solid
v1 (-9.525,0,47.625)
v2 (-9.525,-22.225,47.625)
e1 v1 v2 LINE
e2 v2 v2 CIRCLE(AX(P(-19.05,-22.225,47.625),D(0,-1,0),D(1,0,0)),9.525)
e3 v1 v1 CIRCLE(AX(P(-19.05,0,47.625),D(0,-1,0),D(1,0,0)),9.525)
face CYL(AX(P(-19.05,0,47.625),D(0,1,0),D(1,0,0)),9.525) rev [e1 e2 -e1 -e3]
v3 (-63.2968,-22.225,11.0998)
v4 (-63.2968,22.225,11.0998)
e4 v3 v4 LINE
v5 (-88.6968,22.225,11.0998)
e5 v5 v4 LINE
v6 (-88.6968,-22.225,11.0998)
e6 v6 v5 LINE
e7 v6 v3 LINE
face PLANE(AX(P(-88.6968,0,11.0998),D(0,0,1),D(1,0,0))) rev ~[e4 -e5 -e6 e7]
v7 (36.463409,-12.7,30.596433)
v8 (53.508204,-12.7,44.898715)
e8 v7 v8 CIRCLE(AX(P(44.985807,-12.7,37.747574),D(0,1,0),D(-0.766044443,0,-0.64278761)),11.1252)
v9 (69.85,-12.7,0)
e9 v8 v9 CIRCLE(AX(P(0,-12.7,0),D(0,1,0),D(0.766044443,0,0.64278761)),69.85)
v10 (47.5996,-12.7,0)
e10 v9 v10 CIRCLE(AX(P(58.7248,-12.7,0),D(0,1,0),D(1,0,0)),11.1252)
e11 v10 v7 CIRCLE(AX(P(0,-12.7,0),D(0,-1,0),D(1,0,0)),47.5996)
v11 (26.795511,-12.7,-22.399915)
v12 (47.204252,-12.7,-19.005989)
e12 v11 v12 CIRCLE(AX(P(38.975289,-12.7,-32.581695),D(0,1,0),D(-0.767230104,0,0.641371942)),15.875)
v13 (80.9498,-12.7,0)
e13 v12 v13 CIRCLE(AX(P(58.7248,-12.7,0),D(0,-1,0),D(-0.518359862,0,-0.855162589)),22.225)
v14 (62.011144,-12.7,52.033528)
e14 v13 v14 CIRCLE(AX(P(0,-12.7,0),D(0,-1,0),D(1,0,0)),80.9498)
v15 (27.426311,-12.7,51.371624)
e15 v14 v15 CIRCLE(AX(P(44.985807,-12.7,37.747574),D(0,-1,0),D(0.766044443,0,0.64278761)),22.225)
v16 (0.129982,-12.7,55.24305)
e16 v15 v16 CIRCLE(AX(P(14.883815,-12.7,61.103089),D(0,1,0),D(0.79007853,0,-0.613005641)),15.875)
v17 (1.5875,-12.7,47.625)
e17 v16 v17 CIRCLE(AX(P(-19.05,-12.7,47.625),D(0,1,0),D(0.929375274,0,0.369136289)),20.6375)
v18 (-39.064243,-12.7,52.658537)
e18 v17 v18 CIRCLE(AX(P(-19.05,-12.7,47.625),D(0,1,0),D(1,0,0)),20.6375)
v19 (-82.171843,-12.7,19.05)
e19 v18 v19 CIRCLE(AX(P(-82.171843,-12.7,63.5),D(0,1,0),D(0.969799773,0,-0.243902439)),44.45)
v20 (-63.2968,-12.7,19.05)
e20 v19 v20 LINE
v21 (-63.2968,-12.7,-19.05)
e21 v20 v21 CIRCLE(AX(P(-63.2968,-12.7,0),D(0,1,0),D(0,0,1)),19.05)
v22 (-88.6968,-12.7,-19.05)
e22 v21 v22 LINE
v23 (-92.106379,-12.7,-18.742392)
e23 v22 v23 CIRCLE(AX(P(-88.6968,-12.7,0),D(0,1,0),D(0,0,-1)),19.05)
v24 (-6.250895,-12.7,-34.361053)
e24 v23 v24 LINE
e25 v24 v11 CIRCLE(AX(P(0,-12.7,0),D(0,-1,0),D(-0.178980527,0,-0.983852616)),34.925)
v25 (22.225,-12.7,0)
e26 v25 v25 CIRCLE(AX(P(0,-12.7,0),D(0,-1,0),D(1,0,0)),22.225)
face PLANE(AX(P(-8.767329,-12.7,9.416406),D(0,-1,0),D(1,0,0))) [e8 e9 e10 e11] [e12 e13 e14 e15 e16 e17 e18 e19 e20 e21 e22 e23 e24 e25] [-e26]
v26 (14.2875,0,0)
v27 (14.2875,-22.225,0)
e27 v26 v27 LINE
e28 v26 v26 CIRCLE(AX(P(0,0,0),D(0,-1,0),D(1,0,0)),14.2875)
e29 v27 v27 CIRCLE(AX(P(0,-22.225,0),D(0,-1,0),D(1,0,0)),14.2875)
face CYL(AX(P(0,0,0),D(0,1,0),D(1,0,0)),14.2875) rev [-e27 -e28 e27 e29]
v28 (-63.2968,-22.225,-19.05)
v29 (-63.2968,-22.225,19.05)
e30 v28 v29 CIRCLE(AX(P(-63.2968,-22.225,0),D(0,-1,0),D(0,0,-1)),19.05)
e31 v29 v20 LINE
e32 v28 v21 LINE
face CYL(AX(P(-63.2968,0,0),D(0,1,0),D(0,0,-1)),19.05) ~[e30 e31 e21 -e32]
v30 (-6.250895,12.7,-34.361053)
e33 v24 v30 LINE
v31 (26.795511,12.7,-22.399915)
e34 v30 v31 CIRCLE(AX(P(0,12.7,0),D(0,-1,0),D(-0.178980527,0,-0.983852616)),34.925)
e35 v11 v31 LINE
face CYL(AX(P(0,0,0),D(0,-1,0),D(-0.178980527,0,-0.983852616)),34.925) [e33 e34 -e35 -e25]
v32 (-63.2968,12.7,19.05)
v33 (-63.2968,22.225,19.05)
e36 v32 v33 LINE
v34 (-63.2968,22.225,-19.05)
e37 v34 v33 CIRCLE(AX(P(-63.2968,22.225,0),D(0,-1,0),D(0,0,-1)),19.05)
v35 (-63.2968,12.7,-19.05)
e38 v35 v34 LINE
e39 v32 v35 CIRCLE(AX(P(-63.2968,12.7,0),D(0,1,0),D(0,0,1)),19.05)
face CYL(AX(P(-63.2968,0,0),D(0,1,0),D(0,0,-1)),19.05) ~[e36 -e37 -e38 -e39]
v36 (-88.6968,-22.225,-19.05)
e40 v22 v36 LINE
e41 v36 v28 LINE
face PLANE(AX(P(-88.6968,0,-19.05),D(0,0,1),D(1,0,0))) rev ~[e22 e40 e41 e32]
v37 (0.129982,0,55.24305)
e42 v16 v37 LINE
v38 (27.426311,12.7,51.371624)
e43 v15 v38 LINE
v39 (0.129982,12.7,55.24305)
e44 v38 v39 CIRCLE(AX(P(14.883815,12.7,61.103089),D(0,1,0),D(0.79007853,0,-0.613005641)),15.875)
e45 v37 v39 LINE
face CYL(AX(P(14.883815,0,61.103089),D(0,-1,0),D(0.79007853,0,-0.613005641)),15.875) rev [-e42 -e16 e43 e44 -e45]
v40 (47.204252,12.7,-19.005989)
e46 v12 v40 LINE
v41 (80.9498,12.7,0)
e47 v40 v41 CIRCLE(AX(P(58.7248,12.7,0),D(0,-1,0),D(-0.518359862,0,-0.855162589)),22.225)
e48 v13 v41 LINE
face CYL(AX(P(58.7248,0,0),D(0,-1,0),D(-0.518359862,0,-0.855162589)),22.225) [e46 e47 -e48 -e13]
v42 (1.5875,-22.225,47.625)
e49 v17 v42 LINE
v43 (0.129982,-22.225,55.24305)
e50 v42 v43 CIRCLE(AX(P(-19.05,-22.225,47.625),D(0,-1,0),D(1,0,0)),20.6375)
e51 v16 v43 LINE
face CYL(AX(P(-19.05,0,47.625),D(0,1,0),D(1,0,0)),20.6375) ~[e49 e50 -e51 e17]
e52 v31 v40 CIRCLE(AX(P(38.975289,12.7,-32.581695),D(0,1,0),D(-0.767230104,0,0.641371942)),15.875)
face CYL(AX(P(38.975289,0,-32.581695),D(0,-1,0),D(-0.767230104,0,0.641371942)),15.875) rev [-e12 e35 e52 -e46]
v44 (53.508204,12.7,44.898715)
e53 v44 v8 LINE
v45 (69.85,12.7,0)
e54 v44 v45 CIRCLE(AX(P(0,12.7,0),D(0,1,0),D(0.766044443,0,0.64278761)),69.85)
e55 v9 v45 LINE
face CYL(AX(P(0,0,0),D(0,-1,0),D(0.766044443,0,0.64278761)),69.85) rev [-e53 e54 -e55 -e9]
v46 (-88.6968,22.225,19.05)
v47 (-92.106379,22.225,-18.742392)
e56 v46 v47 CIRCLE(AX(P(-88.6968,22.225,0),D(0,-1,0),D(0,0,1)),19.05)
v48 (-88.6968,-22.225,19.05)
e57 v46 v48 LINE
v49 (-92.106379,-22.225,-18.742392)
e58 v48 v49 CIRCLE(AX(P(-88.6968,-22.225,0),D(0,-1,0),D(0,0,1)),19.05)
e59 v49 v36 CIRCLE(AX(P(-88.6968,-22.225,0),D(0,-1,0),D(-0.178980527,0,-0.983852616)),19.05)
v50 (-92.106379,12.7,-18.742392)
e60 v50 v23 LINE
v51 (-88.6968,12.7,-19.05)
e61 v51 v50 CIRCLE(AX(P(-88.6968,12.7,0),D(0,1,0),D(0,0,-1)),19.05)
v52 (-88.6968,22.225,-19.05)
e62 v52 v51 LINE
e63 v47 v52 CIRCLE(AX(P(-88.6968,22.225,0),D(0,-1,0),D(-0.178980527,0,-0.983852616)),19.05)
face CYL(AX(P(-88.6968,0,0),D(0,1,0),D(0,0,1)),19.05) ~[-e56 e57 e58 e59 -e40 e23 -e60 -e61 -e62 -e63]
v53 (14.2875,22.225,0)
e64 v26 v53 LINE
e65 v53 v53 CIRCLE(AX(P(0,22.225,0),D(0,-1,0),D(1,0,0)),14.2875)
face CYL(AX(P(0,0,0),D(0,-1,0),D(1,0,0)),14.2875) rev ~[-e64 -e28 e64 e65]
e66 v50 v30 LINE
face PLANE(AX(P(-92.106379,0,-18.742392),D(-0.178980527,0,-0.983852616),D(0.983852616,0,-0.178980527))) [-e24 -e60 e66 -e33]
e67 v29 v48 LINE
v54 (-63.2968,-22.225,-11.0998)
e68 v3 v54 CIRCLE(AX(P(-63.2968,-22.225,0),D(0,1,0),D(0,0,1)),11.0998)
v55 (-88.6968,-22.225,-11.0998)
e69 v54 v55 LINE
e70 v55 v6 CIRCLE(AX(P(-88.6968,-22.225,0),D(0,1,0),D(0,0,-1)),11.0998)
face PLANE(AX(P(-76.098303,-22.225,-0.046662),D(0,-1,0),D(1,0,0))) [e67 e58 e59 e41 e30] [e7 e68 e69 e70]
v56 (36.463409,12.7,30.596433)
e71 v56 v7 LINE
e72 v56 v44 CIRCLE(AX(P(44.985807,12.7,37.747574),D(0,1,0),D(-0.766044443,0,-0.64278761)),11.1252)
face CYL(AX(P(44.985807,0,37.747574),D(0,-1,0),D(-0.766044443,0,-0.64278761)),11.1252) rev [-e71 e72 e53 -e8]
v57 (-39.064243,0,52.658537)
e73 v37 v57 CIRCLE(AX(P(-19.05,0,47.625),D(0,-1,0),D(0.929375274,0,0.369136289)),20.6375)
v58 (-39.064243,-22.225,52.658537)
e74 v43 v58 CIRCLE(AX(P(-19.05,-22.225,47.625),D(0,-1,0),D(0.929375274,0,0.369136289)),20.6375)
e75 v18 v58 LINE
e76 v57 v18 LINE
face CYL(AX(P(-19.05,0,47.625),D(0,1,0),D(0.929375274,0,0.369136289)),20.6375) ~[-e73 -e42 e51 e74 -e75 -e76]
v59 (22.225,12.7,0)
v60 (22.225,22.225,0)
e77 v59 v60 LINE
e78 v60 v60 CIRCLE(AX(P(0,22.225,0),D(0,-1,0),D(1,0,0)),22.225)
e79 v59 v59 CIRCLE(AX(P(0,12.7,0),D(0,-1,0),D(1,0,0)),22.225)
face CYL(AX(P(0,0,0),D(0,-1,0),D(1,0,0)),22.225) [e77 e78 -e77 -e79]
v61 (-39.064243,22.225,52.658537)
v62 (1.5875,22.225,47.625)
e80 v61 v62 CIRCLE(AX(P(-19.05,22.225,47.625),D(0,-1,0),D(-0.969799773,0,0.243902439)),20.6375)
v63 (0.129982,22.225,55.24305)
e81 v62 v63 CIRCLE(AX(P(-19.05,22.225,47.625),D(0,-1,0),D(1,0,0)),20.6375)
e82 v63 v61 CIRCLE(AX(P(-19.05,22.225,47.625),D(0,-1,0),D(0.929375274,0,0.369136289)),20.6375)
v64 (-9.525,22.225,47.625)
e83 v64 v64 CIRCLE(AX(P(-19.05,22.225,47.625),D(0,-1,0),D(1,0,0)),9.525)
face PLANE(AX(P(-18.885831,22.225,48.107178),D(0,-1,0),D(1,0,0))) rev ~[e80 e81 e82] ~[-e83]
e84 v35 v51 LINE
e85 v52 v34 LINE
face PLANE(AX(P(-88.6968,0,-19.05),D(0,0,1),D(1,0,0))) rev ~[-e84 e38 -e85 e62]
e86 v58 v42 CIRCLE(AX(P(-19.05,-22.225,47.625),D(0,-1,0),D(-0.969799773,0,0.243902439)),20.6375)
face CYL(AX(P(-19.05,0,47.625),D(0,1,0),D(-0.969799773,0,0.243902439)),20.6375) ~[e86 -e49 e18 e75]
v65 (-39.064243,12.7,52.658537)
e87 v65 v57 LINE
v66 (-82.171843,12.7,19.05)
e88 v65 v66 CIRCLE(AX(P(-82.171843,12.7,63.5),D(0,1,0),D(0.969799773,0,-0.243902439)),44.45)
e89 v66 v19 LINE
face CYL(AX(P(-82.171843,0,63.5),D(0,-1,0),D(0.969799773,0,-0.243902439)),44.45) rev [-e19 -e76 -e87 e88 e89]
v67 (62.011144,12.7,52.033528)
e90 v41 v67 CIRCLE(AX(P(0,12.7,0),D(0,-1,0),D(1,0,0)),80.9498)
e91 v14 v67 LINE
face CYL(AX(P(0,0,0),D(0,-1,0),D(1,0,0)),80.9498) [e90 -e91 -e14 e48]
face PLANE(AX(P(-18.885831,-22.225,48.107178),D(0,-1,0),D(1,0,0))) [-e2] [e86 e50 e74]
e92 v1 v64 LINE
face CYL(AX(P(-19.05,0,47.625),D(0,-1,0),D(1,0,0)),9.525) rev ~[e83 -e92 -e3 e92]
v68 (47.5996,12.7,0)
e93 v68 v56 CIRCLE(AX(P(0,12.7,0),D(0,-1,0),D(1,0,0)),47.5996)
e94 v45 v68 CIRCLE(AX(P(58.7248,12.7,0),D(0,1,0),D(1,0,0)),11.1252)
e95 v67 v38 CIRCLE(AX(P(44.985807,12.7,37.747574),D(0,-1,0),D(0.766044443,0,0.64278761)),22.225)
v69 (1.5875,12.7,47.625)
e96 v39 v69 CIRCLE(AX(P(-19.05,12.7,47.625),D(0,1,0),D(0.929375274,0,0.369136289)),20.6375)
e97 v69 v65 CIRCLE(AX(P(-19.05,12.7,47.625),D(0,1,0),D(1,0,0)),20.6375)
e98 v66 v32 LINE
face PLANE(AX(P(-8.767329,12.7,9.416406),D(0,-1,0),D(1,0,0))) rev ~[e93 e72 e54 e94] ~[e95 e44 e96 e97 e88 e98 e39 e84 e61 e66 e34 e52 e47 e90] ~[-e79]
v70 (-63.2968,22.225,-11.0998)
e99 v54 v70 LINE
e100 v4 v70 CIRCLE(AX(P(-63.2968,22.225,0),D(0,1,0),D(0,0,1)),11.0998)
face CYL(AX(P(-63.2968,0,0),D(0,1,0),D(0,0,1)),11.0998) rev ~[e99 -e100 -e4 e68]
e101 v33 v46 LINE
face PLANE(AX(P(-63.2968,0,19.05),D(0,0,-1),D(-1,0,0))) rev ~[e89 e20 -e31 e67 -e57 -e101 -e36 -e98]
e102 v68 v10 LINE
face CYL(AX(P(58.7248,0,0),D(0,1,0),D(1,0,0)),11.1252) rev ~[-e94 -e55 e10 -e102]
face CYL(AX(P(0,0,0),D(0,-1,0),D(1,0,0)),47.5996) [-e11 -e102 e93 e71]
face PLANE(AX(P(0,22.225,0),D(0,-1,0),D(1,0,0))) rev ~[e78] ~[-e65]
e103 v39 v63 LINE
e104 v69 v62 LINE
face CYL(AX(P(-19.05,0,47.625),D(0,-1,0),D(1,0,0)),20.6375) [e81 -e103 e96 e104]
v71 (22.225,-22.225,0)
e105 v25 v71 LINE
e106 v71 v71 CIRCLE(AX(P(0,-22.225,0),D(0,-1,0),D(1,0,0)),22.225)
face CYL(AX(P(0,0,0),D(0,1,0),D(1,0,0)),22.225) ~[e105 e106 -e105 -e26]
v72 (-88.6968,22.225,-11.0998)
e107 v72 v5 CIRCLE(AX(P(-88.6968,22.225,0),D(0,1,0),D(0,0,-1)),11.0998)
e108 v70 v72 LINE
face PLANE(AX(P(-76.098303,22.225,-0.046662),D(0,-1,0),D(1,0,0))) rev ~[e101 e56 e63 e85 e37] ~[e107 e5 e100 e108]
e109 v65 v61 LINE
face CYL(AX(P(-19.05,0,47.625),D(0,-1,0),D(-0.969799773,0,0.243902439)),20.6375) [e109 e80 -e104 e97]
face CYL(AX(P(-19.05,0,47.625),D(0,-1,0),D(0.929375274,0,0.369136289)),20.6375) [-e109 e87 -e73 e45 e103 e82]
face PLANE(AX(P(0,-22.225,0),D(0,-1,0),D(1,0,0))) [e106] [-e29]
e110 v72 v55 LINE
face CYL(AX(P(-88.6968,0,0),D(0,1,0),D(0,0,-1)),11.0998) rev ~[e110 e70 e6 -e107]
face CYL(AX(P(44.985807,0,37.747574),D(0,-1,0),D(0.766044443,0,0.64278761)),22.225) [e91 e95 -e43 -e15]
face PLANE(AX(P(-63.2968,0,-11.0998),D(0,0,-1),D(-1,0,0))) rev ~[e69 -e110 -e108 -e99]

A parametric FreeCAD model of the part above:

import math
import FreeCAD as App
import Part
import Sketcher

V = App.Vector
Q = App.Units.Quantity

doc = App.newDocument("Part")
params = doc.addObject("Spreadsheet::Sheet", "Params")
for row, (alias, value) in enumerate([
    ("sketch1_diameter", "1.75 in"),
    ("sketch1_width", "1 in"),
    ("sketch1_radius", "1.75 in"),
    ("sketch1_radius2", "0.75 in"),
    ("sketch1_radius3", "2.75 in"),
    ("pad1_length", "1 in"),
    ("sketch2_diameter", "1.75 in"),
    ("sketch2_diameter2", "0.75 in"),
    ("sketch2_width", "1 in"),
    ("sketch2_radius", "0.75 in"),
    ("sketch2_diameter3", "1.125 in"),
    ("pad2_length", "1.75 in"),
], start=1):
    params.set(f"A{row}", alias)
    params.set(f"B{row}", "=" + value)
    params.setAlias(f"B{row}", alias)

body = doc.addObject("PartDesign::Body", "Body")

sketch1 = body.newObject("Sketcher::SketchObject", "Sketch")
sketch1.AttachmentSupport = (doc.getObject("XZ_Plane"), [""])
sketch1.MapMode = "FlatFace"
sketch1.addGeometry(Part.ArcOfCircle(Part.Circle(V(-19, 47.6, 0), V(0, 0, 1), 20.6), math.radians(0), math.radians(22)), False)
sketch1.addGeometry(Part.ArcOfCircle(Part.Circle(V(-19.1, 47.6, 0), V(0, 0, 1), 20.6), math.radians(166), math.radians(360)), False)
sketch1.addGeometry(Part.ArcOfCircle(Part.Circle(V(-82.2, 63.5, 0), V(0, 0, 1), 44.5), math.radians(-90), math.radians(-14)), False)
sketch1.addGeometry(Part.LineSegment(V(-82.2, 19.1, 0), V(-63.3, 19.1, 0)), False)
sketch1.addGeometry(Part.ArcOfCircle(Part.Circle(V(-63.3, 0, 0), V(0, 0, 1), 19.1), math.radians(-90), math.radians(90)), False)
sketch1.addGeometry(Part.LineSegment(V(-63.3, -19.1, 0), V(-88.7, -19.1, 0)), False)
sketch1.addGeometry(Part.ArcOfCircle(Part.Circle(V(-88.7, 0, 0), V(0, 0, 1), 19), math.radians(-100.31), math.radians(-90)), False)
sketch1.addGeometry(Part.LineSegment(V(-92.1, -18.7, 0), V(-6.3, -34.4, 0)), False)
sketch1.addGeometry(Part.ArcOfCircle(Part.Circle(V(0, 0, 0), V(0, 0, 1), 34.9), math.radians(-100), math.radians(-40)), False)
sketch1.addGeometry(Part.ArcOfCircle(Part.Circle(V(39, -32.6, 0), V(0, 0, 1), 15.9), math.radians(59), math.radians(140)), False)
sketch1.addGeometry(Part.ArcOfCircle(Part.Circle(V(58.7, 0, 0), V(0, 0, 1), 22.2), math.radians(-121), math.radians(0)), False)
sketch1.addGeometry(Part.ArcOfCircle(Part.Circle(V(0, 0, 0), V(0, 0, 1), 80.9), math.radians(0), math.radians(40)), False)
sketch1.addGeometry(Part.ArcOfCircle(Part.Circle(V(45, 37.7, 0), V(0, 0, 1), 22.2), math.radians(40), math.radians(142)), False)
sketch1.addGeometry(Part.ArcOfCircle(Part.Circle(V(14.9, 61.1, 0), V(0, 0, 1), 15.9), math.radians(-158), math.radians(-38)), False)
sketch1.addGeometry(Part.Circle(V(0, 0, 0), V(0, 0, 1), 22.2), False)
sketch1.addGeometry(Part.ArcOfCircle(Part.Circle(V(0, 0, 0), V(0, 0, 1), 69.8), math.radians(0), math.radians(40)), False)
sketch1.addGeometry(Part.ArcOfCircle(Part.Circle(V(58.7, 0, 0), V(0, 0, 1), 11.1), math.radians(180), math.radians(360)), False)
sketch1.addGeometry(Part.ArcOfCircle(Part.Circle(V(0, 0, 0), V(0, 0, 1), 47.6), math.radians(0), math.radians(40)), False)
sketch1.addGeometry(Part.ArcOfCircle(Part.Circle(V(45, 37.7, 0), V(0, 0, 1), 11.1), math.radians(40), math.radians(220)), False)
sketch1.addConstraint(Sketcher.Constraint("Tangent", 0, 1, 1, 2))
sketch1.addConstraint(Sketcher.Constraint("Tangent", 1, 1, 2, 2))
sketch1.addConstraint(Sketcher.Constraint("Tangent", 2, 1, 3, 1))
sketch1.addConstraint(Sketcher.Constraint("Tangent", 3, 2, 4, 2))
sketch1.addConstraint(Sketcher.Constraint("Tangent", 4, 1, 5, 1))
sketch1.addConstraint(Sketcher.Constraint("Tangent", 5, 2, 6, 2))
sketch1.addConstraint(Sketcher.Constraint("Tangent", 6, 1, 7, 1))
sketch1.addConstraint(Sketcher.Constraint("Tangent", 7, 2, 8, 1))
sketch1.addConstraint(Sketcher.Constraint("Tangent", 8, 2, 9, 2))
sketch1.addConstraint(Sketcher.Constraint("Tangent", 9, 1, 10, 1))
sketch1.addConstraint(Sketcher.Constraint("Tangent", 10, 2, 11, 1))
sketch1.addConstraint(Sketcher.Constraint("Tangent", 11, 2, 12, 1))
sketch1.addConstraint(Sketcher.Constraint("Tangent", 12, 2, 13, 2))
sketch1.addConstraint(Sketcher.Constraint("Tangent", 13, 1, 0, 2))
sketch1.addConstraint(Sketcher.Constraint("Tangent", 15, 1, 16, 2))
sketch1.addConstraint(Sketcher.Constraint("Tangent", 16, 1, 17, 1))
sketch1.addConstraint(Sketcher.Constraint("Tangent", 17, 2, 18, 2))
sketch1.addConstraint(Sketcher.Constraint("Tangent", 18, 1, 15, 2))
sketch1.addConstraint(Sketcher.Constraint("Horizontal", 3))
sketch1.addConstraint(Sketcher.Constraint("Horizontal", 5))
sketch1.addConstraint(Sketcher.Constraint("Coincident", 8, 3, -1, 1))
sketch1.addConstraint(Sketcher.Constraint("Coincident", 11, 3, -1, 1))
sketch1.addConstraint(Sketcher.Constraint("Coincident", 14, 3, -1, 1))
sketch1.addConstraint(Sketcher.Constraint("Coincident", 15, 3, -1, 1))
sketch1.addConstraint(Sketcher.Constraint("Coincident", 17, 3, -1, 1))
sketch1.addConstraint(Sketcher.Constraint("Coincident", 16, 3, 10, 3))
sketch1.addConstraint(Sketcher.Constraint("Coincident", 18, 3, 12, 3))
sketch1.addConstraint(Sketcher.Constraint("Equal", 0, 1))
sketch1.addConstraint(Sketcher.Constraint("Equal", 4, 6))
sketch1.addConstraint(Sketcher.Constraint("Equal", 9, 13))
sketch1.addConstraint(Sketcher.Constraint("Equal", 12, 14))
sketch1.addConstraint(Sketcher.Constraint("PointOnObject", 4, 3, -1))
sketch1.addConstraint(Sketcher.Constraint("PointOnObject", 10, 3, -1))
sketch1.addConstraint(Sketcher.Constraint("Horizontal", 1, 3, 0, 1))
sketch1.addConstraint(Sketcher.Constraint("Diameter", 14, Q("1.75 in")))
sketch1.addConstraint(Sketcher.Constraint("DistanceX", 5, 2, 5, 1, Q("1 in")))
sketch1.addConstraint(Sketcher.Constraint("Radius", 2, Q("1.75 in")))
sketch1.addConstraint(Sketcher.Constraint("Radius", 4, Q("0.75 in")))
sketch1.addConstraint(Sketcher.Constraint("Radius", 15, Q("2.75 in")))
sketch1.addConstraint(Sketcher.Constraint("Radius", 0, Q("0.8125 in")))
sketch1.addConstraint(Sketcher.Constraint("Radius", 8, Q("1.375 in")))
sketch1.addConstraint(Sketcher.Constraint("Radius", 9, Q("0.625 in")))
sketch1.addConstraint(Sketcher.Constraint("Radius", 11, Q("3.187 in")))
sketch1.addConstraint(Sketcher.Constraint("DistanceX", 0, 3, -1, 1, Q("0.75 in")))
sketch1.addConstraint(Sketcher.Constraint("DistanceY", -1, 1, 0, 3, Q("1.875 in")))
sketch1.addConstraint(Sketcher.Constraint("DistanceX", 4, 3, -1, 1, Q("2.492 in")))
sketch1.addConstraint(Sketcher.Constraint("DistanceY", -1, 1, 13, 3, 61.103089))
sketch1.setExpression("Constraints[34]", "Params.sketch1_diameter")
sketch1.setExpression("Constraints[35]", "Params.sketch1_width")
sketch1.setExpression("Constraints[36]", "Params.sketch1_radius")
sketch1.setExpression("Constraints[37]", "Params.sketch1_radius2")
sketch1.setExpression("Constraints[38]", "Params.sketch1_radius3")
pad1 = body.newObject("PartDesign::Pad", "Pad")
pad1.Profile = sketch1
pad1.setExpression("Length", "Params.pad1_length")
pad1.Midplane = True

sketch2 = body.newObject("Sketcher::SketchObject", "Sketch001")
sketch2.AttachmentSupport = (doc.getObject("XZ_Plane"), [""])
sketch2.MapMode = "FlatFace"
sketch2.addGeometry(Part.LineSegment(V(-63.3, 19.1, 0), V(-88.7, 19.1, 0)), False)
sketch2.addGeometry(Part.ArcOfCircle(Part.Circle(V(-88.7, 0, 0), V(0, 0, 1), 19.1), math.radians(90), math.radians(260)), False)
sketch2.addGeometry(Part.ArcOfCircle(Part.Circle(V(-88.7, 0, 0), V(0, 0, 1), 19), math.radians(-100.31), math.radians(-90)), False)
sketch2.addGeometry(Part.LineSegment(V(-88.7, -19.1, 0), V(-63.3, -19.1, 0)), False)
sketch2.addGeometry(Part.ArcOfCircle(Part.Circle(V(-63.3, 0, 0), V(0, 0, 1), 19.1), math.radians(-90), math.radians(90)), False)
sketch2.addGeometry(Part.LineSegment(V(-63.3, -11.1, 0), V(-88.7, -11.1, 0)), False)
sketch2.addGeometry(Part.ArcOfCircle(Part.Circle(V(-88.7, 0, 0), V(0, 0, 1), 11.1), math.radians(90), math.radians(270)), False)
sketch2.addGeometry(Part.LineSegment(V(-88.7, 11.1, 0), V(-63.3, 11.1, 0)), False)
sketch2.addGeometry(Part.ArcOfCircle(Part.Circle(V(-63.3, 0, 0), V(0, 0, 1), 11.1), math.radians(-90), math.radians(90)), False)
sketch2.addGeometry(Part.Circle(V(0, 0, 0), V(0, 0, 1), 22.2), False)
sketch2.addGeometry(Part.Circle(V(0, 0, 0), V(0, 0, 1), 14.3), False)
sketch2.addGeometry(Part.ArcOfCircle(Part.Circle(V(-19.1, 47.6, 0), V(0, 0, 1), 20.6), math.radians(166), math.radians(360)), False)
sketch2.addGeometry(Part.ArcOfCircle(Part.Circle(V(-19, 47.6, 0), V(0, 0, 1), 20.6), math.radians(0), math.radians(22)), False)
sketch2.addGeometry(Part.ArcOfCircle(Part.Circle(V(-19.1, 47.6, 0), V(0, 0, 1), 20.6), math.radians(22), math.radians(166)), False)
sketch2.addGeometry(Part.Circle(V(-19.1, 47.6, 0), V(0, 0, 1), 9.5), False)
sketch2.addConstraint(Sketcher.Constraint("Tangent", 0, 2, 1, 1))
sketch2.addConstraint(Sketcher.Constraint("Tangent", 1, 2, 2, 1))
sketch2.addConstraint(Sketcher.Constraint("Tangent", 2, 2, 3, 1))
sketch2.addConstraint(Sketcher.Constraint("Tangent", 3, 2, 4, 1))
sketch2.addConstraint(Sketcher.Constraint("Tangent", 4, 2, 0, 1))
sketch2.addConstraint(Sketcher.Constraint("Tangent", 5, 2, 6, 2))
sketch2.addConstraint(Sketcher.Constraint("Tangent", 6, 1, 7, 1))
sketch2.addConstraint(Sketcher.Constraint("Tangent", 7, 2, 8, 2))
sketch2.addConstraint(Sketcher.Constraint("Tangent", 8, 1, 5, 1))
sketch2.addConstraint(Sketcher.Constraint("Tangent", 11, 2, 12, 1))
sketch2.addConstraint(Sketcher.Constraint("Tangent", 12, 2, 13, 1))
sketch2.addConstraint(Sketcher.Constraint("Tangent", 13, 2, 11, 1))
sketch2.addConstraint(Sketcher.Constraint("Horizontal", 0))
sketch2.addConstraint(Sketcher.Constraint("Horizontal", 3))
sketch2.addConstraint(Sketcher.Constraint("Horizontal", 5))
sketch2.addConstraint(Sketcher.Constraint("Horizontal", 7))
sketch2.addConstraint(Sketcher.Constraint("Coincident", 9, 3, -1, 1))
sketch2.addConstraint(Sketcher.Constraint("Coincident", 10, 3, -1, 1))
sketch2.addConstraint(Sketcher.Constraint("Coincident", 6, 3, 1, 3))
sketch2.addConstraint(Sketcher.Constraint("Coincident", 8, 3, 4, 3))
sketch2.addConstraint(Sketcher.Constraint("Coincident", 14, 3, 11, 3))
sketch2.addConstraint(Sketcher.Constraint("PointOnObject", 1, 3, -1))
sketch2.addConstraint(Sketcher.Constraint("Horizontal", 14, 3, 11, 2))
sketch2.addConstraint(Sketcher.Constraint("Diameter", 9, Q("1.75 in")))
sketch2.addConstraint(Sketcher.Constraint("Diameter", 14, Q("0.75 in")))
sketch2.addConstraint(Sketcher.Constraint("DistanceX", 0, 2, 0, 1, Q("1 in")))
sketch2.addConstraint(Sketcher.Constraint("Radius", 1, Q("0.75 in")))
sketch2.addConstraint(Sketcher.Constraint("Diameter", 10, Q("1.125 in")))
sketch2.addConstraint(Sketcher.Constraint("Radius", 6, Q("0.437 in")))
sketch2.addConstraint(Sketcher.Constraint("Radius", 11, Q("0.8125 in")))
sketch2.addConstraint(Sketcher.Constraint("DistanceX", 11, 3, -1, 1, Q("0.75 in")))
sketch2.addConstraint(Sketcher.Constraint("DistanceX", 1, 3, -1, 1, Q("3.492 in")))
sketch2.addConstraint(Sketcher.Constraint("DistanceY", -1, 1, 11, 3, Q("1.875 in")))
sketch2.addConstraint(Sketcher.Constraint("DistanceX", 1, 2, -1, 1, 92.106379))
sketch2.addConstraint(Sketcher.Constraint("DistanceY", -1, 1, 12, 2, 55.24305))
sketch2.addConstraint(Sketcher.Constraint("DistanceX", 13, 2, -1, 1, 39.064243))
sketch2.setExpression("Constraints[23]", "Params.sketch2_diameter")
sketch2.setExpression("Constraints[24]", "Params.sketch2_diameter2")
sketch2.setExpression("Constraints[25]", "Params.sketch2_width")
sketch2.setExpression("Constraints[26]", "Params.sketch2_radius")
sketch2.setExpression("Constraints[27]", "Params.sketch2_diameter3")
pad2 = body.newObject("PartDesign::Pad", "Pad001")
pad2.Profile = sketch2
pad2.setExpression("Length", "Params.pad2_length")
pad2.Midplane = True

doc.recompute()
